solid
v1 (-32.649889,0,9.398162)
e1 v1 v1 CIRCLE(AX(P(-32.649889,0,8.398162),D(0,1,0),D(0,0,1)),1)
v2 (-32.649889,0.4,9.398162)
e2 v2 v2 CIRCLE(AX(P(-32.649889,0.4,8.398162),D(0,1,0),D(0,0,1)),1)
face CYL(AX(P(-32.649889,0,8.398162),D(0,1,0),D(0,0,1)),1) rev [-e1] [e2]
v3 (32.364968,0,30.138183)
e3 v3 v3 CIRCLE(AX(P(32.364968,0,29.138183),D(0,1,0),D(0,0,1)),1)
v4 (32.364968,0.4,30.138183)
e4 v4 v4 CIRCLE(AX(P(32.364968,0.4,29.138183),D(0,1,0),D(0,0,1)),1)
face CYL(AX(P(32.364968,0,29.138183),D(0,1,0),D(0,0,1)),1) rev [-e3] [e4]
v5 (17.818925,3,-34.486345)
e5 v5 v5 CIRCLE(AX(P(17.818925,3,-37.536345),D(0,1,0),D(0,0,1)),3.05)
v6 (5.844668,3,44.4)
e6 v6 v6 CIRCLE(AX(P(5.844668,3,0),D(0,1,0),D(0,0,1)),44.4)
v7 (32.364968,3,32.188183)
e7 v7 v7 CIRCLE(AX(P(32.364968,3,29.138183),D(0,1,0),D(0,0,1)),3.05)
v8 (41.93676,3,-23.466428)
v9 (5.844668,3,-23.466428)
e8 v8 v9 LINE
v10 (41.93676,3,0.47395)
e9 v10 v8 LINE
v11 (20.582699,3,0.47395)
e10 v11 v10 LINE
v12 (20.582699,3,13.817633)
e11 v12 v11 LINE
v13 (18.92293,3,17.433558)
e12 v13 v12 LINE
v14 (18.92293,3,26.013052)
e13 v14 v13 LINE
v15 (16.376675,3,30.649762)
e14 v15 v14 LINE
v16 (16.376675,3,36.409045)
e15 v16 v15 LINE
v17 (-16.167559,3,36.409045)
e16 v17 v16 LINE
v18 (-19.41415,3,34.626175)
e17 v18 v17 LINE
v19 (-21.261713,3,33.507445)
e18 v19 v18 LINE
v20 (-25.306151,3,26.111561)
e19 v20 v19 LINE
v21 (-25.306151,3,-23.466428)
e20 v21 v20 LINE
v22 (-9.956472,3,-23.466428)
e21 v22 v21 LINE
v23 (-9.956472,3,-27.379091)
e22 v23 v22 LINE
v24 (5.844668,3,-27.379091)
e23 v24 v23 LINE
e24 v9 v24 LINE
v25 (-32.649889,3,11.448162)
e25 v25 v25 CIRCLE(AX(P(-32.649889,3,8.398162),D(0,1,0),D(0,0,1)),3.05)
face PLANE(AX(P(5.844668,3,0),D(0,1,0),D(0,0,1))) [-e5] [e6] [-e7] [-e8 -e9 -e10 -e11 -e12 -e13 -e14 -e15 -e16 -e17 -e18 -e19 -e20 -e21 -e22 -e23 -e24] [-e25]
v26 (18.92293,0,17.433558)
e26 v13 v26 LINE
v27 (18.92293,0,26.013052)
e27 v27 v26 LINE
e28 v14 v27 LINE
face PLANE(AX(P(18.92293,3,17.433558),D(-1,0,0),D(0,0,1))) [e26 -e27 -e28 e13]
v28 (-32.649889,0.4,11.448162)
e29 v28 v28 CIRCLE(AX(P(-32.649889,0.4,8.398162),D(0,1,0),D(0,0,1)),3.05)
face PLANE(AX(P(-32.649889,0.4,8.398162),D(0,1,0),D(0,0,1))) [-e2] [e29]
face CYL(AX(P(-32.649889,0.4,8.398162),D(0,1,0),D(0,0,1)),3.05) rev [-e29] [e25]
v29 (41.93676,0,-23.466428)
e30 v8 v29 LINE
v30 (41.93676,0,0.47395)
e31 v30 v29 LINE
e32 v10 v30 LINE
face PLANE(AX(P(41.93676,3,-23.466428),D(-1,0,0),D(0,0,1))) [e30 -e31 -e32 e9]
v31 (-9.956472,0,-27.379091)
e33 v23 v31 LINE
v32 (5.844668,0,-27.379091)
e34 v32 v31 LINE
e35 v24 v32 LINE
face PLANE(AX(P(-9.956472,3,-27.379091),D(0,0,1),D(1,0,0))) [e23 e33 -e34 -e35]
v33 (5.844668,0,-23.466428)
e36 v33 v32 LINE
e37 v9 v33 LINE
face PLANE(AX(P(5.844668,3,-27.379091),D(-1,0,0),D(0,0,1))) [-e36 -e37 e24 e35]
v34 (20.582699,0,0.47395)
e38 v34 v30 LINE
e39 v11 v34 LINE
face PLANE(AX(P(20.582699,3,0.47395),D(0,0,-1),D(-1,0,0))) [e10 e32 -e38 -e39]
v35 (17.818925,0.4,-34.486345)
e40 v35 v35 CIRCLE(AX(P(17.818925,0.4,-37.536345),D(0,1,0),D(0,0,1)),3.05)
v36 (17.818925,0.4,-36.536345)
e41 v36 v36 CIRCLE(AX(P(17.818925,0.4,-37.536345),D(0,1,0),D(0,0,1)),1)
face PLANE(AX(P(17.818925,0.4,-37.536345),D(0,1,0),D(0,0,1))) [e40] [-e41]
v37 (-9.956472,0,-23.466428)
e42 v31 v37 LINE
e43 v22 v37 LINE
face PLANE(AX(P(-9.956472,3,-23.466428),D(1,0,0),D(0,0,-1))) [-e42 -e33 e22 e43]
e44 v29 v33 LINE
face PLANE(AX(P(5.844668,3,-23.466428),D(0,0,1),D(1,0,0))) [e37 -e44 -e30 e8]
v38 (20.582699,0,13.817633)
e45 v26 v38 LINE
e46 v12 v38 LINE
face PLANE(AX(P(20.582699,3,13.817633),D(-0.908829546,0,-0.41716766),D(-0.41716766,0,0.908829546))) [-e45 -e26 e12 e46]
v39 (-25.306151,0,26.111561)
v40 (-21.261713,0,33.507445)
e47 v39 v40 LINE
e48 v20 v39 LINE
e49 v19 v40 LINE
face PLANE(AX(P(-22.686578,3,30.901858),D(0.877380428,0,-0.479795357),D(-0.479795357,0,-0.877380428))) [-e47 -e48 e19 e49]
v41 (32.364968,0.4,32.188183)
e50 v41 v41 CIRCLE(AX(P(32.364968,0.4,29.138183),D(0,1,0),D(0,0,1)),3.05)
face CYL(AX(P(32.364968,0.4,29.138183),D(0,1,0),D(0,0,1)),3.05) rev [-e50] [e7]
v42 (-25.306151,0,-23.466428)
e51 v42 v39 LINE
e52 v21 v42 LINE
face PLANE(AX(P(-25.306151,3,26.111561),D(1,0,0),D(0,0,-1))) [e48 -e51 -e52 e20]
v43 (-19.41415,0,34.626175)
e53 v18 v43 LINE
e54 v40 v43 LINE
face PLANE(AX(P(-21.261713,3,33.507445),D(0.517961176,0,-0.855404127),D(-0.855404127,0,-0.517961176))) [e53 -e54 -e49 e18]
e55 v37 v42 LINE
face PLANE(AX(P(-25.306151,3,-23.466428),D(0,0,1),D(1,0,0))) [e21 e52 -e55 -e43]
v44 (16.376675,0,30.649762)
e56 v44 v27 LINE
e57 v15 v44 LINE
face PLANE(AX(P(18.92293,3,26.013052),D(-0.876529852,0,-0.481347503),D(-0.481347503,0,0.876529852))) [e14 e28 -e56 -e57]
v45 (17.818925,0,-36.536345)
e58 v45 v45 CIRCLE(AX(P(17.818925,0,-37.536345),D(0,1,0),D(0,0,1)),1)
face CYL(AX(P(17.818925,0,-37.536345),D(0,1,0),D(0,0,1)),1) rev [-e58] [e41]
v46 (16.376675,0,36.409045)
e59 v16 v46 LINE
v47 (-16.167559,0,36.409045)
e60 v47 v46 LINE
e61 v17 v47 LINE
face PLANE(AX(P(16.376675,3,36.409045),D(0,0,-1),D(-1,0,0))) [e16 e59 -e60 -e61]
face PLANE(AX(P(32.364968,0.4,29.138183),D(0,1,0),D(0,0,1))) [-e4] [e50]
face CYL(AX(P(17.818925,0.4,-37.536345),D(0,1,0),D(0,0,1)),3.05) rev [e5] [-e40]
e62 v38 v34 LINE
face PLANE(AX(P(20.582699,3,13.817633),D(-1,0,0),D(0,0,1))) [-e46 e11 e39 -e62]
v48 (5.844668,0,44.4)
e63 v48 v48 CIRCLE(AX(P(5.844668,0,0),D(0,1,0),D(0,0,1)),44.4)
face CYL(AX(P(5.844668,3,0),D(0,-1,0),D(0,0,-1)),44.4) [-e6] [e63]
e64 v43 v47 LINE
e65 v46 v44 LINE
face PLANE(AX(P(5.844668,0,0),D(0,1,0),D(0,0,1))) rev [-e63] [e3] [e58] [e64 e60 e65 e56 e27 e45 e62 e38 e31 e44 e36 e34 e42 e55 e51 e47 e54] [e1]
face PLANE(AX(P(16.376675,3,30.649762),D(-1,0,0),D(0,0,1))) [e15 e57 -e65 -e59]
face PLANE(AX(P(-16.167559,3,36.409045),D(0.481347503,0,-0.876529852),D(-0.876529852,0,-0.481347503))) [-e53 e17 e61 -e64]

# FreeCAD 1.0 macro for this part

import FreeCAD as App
import Part
import Sketcher
from FreeCAD import Vector
Q = App.Units.Quantity

doc = App.newDocument("Part")
params = doc.addObject("Spreadsheet::Sheet", "Params")
for row, (alias, value) in enumerate([
    ("sketch1_diameter", "88.8 mm"),
    ("pad1_length", "3 mm"),
    ("sketch2_diameter", "6.1 mm"),
    ("pocket1_length", "2.6 mm"),
    ("sketch3_diameter", "2 mm"),
], start=1):
    params.set(f"A{row}", alias)
    params.set(f"B{row}", "=" + value)
    params.setAlias(f"B{row}", alias)

body = doc.addObject("PartDesign::Body", "Body")

sketch1 = body.newObject("Sketcher::SketchObject", "Sketch")
sketch1.AttachmentSupport = (doc.getObject("XZ_Plane"), [""])
sketch1.MapMode = "FlatFace"
sketch1.addGeometry(Part.Circle(Vector(5.844668, 0, 0), Vector(0, 0, 1), 44.4), False)
sketch1.addGeometry(Part.LineSegment(Vector(-25.306151, 26.111561, 0), Vector(-25.306151, -23.466428, 0)), False)
sketch1.addGeometry(Part.LineSegment(Vector(-25.306151, -23.466428, 0), Vector(-9.956472, -23.466428, 0)), False)
sketch1.addGeometry(Part.LineSegment(Vector(-9.956472, -23.466428, 0), Vector(-9.956472, -27.379091, 0)), False)
sketch1.addGeometry(Part.LineSegment(Vector(-9.956472, -27.379091, 0), Vector(5.844668, -27.379091, 0)), False)
sketch1.addGeometry(Part.LineSegment(Vector(5.844668, -27.379091, 0), Vector(5.844668, -23.466428, 0)), False)
sketch1.addGeometry(Part.LineSegment(Vector(5.844668, -23.466428, 0), Vector(41.93676, -23.466428, 0)), False)
sketch1.addGeometry(Part.LineSegment(Vector(41.93676, -23.466428, 0), Vector(41.93676, 0.47395, 0)), False)
sketch1.addGeometry(Part.LineSegment(Vector(41.93676, 0.47395, 0), Vector(20.582699, 0.47395, 0)), False)
sketch1.addGeometry(Part.LineSegment(Vector(20.582699, 0.47395, 0), Vector(20.582699, 13.817633, 0)), False)
sketch1.addGeometry(Part.LineSegment(Vector(20.582699, 13.817633, 0), Vector(18.92293, 17.433558, 0)), False)
sketch1.addGeometry(Part.LineSegment(Vector(18.92293, 17.433558, 0), Vector(18.92293, 26.013052, 0)), False)
sketch1.addGeometry(Part.LineSegment(Vector(18.92293, 26.013052, 0), Vector(16.376675, 30.649762, 0)), False)
sketch1.addGeometry(Part.LineSegment(Vector(16.376675, 30.649762, 0), Vector(16.376675, 36.409045, 0)), False)
sketch1.addGeometry(Part.LineSegment(Vector(16.376675, 36.409045, 0), Vector(-16.167559, 36.409045, 0)), False)
sketch1.addGeometry(Part.LineSegment(Vector(-16.167559, 36.409045, 0), Vector(-19.41415, 34.626175, 0)), False)
sketch1.addGeometry(Part.LineSegment(Vector(-19.41415, 34.626175, 0), Vector(-21.261713, 33.507445, 0)), False)
sketch1.addGeometry(Part.LineSegment(Vector(-21.261713, 33.507445, 0), Vector(-22.686578, 30.901858, 0)), False)
sketch1.addGeometry(Part.LineSegment(Vector(-22.686578, 30.901858, 0), Vector(-25.306151, 26.111561, 0)), False)
sketch1.addConstraint(Sketcher.Constraint("Coincident", 1, 2, 2, 1))
sketch1.addConstraint(Sketcher.Constraint("Coincident", 2, 2, 3, 1))
sketch1.addConstraint(Sketcher.Constraint("Coincident", 3, 2, 4, 1))
sketch1.addConstraint(Sketcher.Constraint("Coincident", 4, 2, 5, 1))
sketch1.addConstraint(Sketcher.Constraint("Coincident", 5, 2, 6, 1))
sketch1.addConstraint(Sketcher.Constraint("Coincident", 6, 2, 7, 1))
sketch1.addConstraint(Sketcher.Constraint("Coincident", 7, 2, 8, 1))
sketch1.addConstraint(Sketcher.Constraint("Coincident", 8, 2, 9, 1))
sketch1.addConstraint(Sketcher.Constraint("Coincident", 9, 2, 10, 1))
sketch1.addConstraint(Sketcher.Constraint("Coincident", 10, 2, 11, 1))
sketch1.addConstraint(Sketcher.Constraint("Coincident", 11, 2, 12, 1))
sketch1.addConstraint(Sketcher.Constraint("Coincident", 12, 2, 13, 1))
sketch1.addConstraint(Sketcher.Constraint("Coincident", 13, 2, 14, 1))
sketch1.addConstraint(Sketcher.Constraint("Coincident", 14, 2, 15, 1))
sketch1.addConstraint(Sketcher.Constraint("Coincident", 15, 2, 16, 1))
sketch1.addConstraint(Sketcher.Constraint("Coincident", 16, 2, 17, 1))
sketch1.addConstraint(Sketcher.Constraint("Coincident", 17, 2, 18, 1))
sketch1.addConstraint(Sketcher.Constraint("Coincident", 18, 2, 1, 1))
sketch1.addConstraint(Sketcher.Constraint("Vertical", 1))
sketch1.addConstraint(Sketcher.Constraint("Horizontal", 2))
sketch1.addConstraint(Sketcher.Constraint("Vertical", 3))
sketch1.addConstraint(Sketcher.Constraint("Horizontal", 4))
sketch1.addConstraint(Sketcher.Constraint("Vertical", 5))
sketch1.addConstraint(Sketcher.Constraint("Horizontal", 6))
sketch1.addConstraint(Sketcher.Constraint("Vertical", 7))
sketch1.addConstraint(Sketcher.Constraint("Horizontal", 8))
sketch1.addConstraint(Sketcher.Constraint("Vertical", 9))
sketch1.addConstraint(Sketcher.Constraint("Vertical", 11))
sketch1.addConstraint(Sketcher.Constraint("Vertical", 13))
sketch1.addConstraint(Sketcher.Constraint("Horizontal", 14))
sketch1.addConstraint(Sketcher.Constraint("PointOnObject", 0, 3, -1))
sketch1.addConstraint(Sketcher.Constraint("Perpendicular", 12, 15))
sketch1.addConstraint(Sketcher.Constraint("Parallel", 17, 18))
sketch1.addConstraint(Sketcher.Constraint("Horizontal", 2, 2, 5, 2))
sketch1.addConstraint(Sketcher.Constraint("Vertical", 0, 3, 4, 2))
sketch1.addConstraint(Sketcher.Constraint("Diameter", 0, Q("88.8 mm")))
sketch1.addConstraint(Sketcher.Constraint("DistanceX", 18, 2, 15, 2, Q("5.892001 mm")))
sketch1.addConstraint(Sketcher.Constraint("DistanceX", 2, 1, 2, 2, Q("15.349679 mm")))
sketch1.addConstraint(Sketcher.Constraint("DistanceX", 4, 1, 4, 2, Q("15.80114 mm")))
sketch1.addConstraint(Sketcher.Constraint("DistanceX", 8, 2, 8, 1, Q("21.354061 mm")))
sketch1.addConstraint(Sketcher.Constraint("DistanceY", 1, 2, 1, 1, Q("49.577989 mm")))
sketch1.addConstraint(Sketcher.Constraint("DistanceX", -1, 1, 8, 2, Q("20.582699 mm")))
sketch1.addConstraint(Sketcher.Constraint("DistanceY", 16, 2, 14, 2, Q("2.901599 mm")))
sketch1.addConstraint(Sketcher.Constraint("Distance", 10, Q("3.978661 mm")))
sketch1.addConstraint(Sketcher.Constraint("Distance", 12, Q("5.289849 mm")))
sketch1.addConstraint(Sketcher.Constraint("Distance", 16, Q("2.159871 mm")))
sketch1.addConstraint(Sketcher.Constraint("DistanceX", 6, 1, 6, 2, Q("36.092092 mm")))
sketch1.addConstraint(Sketcher.Constraint("DistanceX", 14, 2, 14, 1, Q("32.544234 mm")))
sketch1.addConstraint(Sketcher.Constraint("DistanceY", 3, 2, 3, 1, Q("3.912663 mm")))
sketch1.addConstraint(Sketcher.Constraint("DistanceY", 7, 1, 7, 2, Q("23.940377 mm")))
sketch1.addConstraint(Sketcher.Constraint("DistanceY", 9, 1, 9, 2, Q("13.343683 mm")))
sketch1.addConstraint(Sketcher.Constraint("DistanceY", 11, 1, 11, 2, Q("8.579494 mm")))
sketch1.addConstraint(Sketcher.Constraint("DistanceY", 13, 1, 13, 2, Q("5.759282 mm")))
sketch1.addConstraint(Sketcher.Constraint("DistanceY", 3, 2, -1, 1, Q("27.379091 mm")))
sketch1.addConstraint(Sketcher.Constraint("DistanceX", -1, 1, 10, 2, Q("18.92293 mm")))
sketch1.addConstraint(Sketcher.Constraint("DistanceX", 14, 2, -1, 1, Q("16.167559 mm")))
sketch1.addConstraint(Sketcher.Constraint("DistanceY", -1, 1, 17, 2, Q("30.901858 mm")))
sketch1.setExpression("Constraints[35]", "Params.sketch1_diameter")
pad1 = body.newObject("PartDesign::Pad", "Pad")
pad1.Profile = sketch1
pad1.setExpression("Length", "Params.pad1_length")
pad1.Reversed = True

sketch2 = body.newObject("Sketcher::SketchObject", "Sketch001")
sketch2.AttachmentSupport = (doc.getObject("XZ_Plane"), [""])
sketch2.MapMode = "FlatFace"
sketch2.AttachmentOffset = App.Placement(Vector(0, 0, -3), App.Rotation())
sketch2.addGeometry(Part.Circle(Vector(32.364968, 29.138183, 0), Vector(0, 0, 1), 3.05), False)
sketch2.addGeometry(Part.Circle(Vector(17.818925, -37.536345, 0), Vector(0, 0, 1), 3.05), False)
sketch2.addGeometry(Part.Circle(Vector(-32.649889, 8.398162, 0), Vector(0, 0, 1), 3.05), False)
sketch2.addConstraint(Sketcher.Constraint("Equal", 0, 1))
sketch2.addConstraint(Sketcher.Constraint("Equal", 1, 2))
sketch2.addConstraint(Sketcher.Constraint("Diameter", 0, Q("6.1 mm")))
sketch2.addConstraint(Sketcher.Constraint("DistanceX", 2, 3, -1, 1, Q("32.649889 mm")))
sketch2.addConstraint(Sketcher.Constraint("DistanceY", -1, 1, 2, 3, Q("8.398162 mm")))
sketch2.addConstraint(Sketcher.Constraint("DistanceY", 2, 3, 0, 3, Q("20.740022 mm")))
sketch2.addConstraint(Sketcher.Constraint("DistanceX", -1, 1, 0, 3, Q("32.364968 mm")))
sketch2.addConstraint(Sketcher.Constraint("DistanceX", -1, 1, 1, 3, Q("17.818925 mm")))
sketch2.addConstraint(Sketcher.Constraint("DistanceY", 1, 3, -1, 1, Q("37.536345 mm")))
sketch2.setExpression("Constraints[2]", "Params.sketch2_diameter")
pocket1 = body.newObject("PartDesign::Pocket", "Pocket")
pocket1.Profile = sketch2
pocket1.setExpression("Length", "Params.pocket1_length")
pocket1.Reversed = True

sketch3 = body.newObject("Sketcher::SketchObject", "Sketch002")
sketch3.AttachmentSupport = (doc.getObject("XZ_Plane"), [""])
sketch3.MapMode = "FlatFace"
sketch3.AttachmentOffset = App.Placement(Vector(0, 0, -0.4), App.Rotation())
sketch3.addGeometry(Part.Circle(Vector(-32.649889, 8.398162, 0), Vector(0, 0, 1), 1), False)
sketch3.addGeometry(Part.Circle(Vector(17.818925, -37.536345, 0), Vector(0, 0, 1), 1), False)
sketch3.addGeometry(Part.Circle(Vector(32.364968, 29.138183, 0), Vector(0, 0, 1), 1), False)
sketch3.addConstraint(Sketcher.Constraint("Equal", 0, 1))
sketch3.addConstraint(Sketcher.Constraint("Equal", 1, 2))
sketch3.addConstraint(Sketcher.Constraint("Diameter", 0, Q("2 mm")))
sketch3.addConstraint(Sketcher.Constraint("DistanceX", 0, 3, -1, 1, Q("32.649889 mm")))
sketch3.addConstraint(Sketcher.Constraint("DistanceY", -1, 1, 0, 3, Q("8.398162 mm")))
sketch3.addConstraint(Sketcher.Constraint("DistanceY", 0, 3, 2, 3, Q("20.740022 mm")))
sketch3.addConstraint(Sketcher.Constraint("DistanceX", -1, 1, 1, 3, Q("17.818925 mm")))
sketch3.addConstraint(Sketcher.Constraint("DistanceY", 1, 3, -1, 1, Q("37.536345 mm")))
sketch3.addConstraint(Sketcher.Constraint("DistanceX", -1, 1, 2, 3, Q("32.364968 mm")))
sketch3.setExpression("Constraints[2]", "Params.sketch3_diameter")
pocket2 = body.newObject("PartDesign::Pocket", "Pocket001")
pocket2.Profile = sketch3
pocket2.Type = "ThroughAll"
pocket2.Reversed = True

doc.recompute()
